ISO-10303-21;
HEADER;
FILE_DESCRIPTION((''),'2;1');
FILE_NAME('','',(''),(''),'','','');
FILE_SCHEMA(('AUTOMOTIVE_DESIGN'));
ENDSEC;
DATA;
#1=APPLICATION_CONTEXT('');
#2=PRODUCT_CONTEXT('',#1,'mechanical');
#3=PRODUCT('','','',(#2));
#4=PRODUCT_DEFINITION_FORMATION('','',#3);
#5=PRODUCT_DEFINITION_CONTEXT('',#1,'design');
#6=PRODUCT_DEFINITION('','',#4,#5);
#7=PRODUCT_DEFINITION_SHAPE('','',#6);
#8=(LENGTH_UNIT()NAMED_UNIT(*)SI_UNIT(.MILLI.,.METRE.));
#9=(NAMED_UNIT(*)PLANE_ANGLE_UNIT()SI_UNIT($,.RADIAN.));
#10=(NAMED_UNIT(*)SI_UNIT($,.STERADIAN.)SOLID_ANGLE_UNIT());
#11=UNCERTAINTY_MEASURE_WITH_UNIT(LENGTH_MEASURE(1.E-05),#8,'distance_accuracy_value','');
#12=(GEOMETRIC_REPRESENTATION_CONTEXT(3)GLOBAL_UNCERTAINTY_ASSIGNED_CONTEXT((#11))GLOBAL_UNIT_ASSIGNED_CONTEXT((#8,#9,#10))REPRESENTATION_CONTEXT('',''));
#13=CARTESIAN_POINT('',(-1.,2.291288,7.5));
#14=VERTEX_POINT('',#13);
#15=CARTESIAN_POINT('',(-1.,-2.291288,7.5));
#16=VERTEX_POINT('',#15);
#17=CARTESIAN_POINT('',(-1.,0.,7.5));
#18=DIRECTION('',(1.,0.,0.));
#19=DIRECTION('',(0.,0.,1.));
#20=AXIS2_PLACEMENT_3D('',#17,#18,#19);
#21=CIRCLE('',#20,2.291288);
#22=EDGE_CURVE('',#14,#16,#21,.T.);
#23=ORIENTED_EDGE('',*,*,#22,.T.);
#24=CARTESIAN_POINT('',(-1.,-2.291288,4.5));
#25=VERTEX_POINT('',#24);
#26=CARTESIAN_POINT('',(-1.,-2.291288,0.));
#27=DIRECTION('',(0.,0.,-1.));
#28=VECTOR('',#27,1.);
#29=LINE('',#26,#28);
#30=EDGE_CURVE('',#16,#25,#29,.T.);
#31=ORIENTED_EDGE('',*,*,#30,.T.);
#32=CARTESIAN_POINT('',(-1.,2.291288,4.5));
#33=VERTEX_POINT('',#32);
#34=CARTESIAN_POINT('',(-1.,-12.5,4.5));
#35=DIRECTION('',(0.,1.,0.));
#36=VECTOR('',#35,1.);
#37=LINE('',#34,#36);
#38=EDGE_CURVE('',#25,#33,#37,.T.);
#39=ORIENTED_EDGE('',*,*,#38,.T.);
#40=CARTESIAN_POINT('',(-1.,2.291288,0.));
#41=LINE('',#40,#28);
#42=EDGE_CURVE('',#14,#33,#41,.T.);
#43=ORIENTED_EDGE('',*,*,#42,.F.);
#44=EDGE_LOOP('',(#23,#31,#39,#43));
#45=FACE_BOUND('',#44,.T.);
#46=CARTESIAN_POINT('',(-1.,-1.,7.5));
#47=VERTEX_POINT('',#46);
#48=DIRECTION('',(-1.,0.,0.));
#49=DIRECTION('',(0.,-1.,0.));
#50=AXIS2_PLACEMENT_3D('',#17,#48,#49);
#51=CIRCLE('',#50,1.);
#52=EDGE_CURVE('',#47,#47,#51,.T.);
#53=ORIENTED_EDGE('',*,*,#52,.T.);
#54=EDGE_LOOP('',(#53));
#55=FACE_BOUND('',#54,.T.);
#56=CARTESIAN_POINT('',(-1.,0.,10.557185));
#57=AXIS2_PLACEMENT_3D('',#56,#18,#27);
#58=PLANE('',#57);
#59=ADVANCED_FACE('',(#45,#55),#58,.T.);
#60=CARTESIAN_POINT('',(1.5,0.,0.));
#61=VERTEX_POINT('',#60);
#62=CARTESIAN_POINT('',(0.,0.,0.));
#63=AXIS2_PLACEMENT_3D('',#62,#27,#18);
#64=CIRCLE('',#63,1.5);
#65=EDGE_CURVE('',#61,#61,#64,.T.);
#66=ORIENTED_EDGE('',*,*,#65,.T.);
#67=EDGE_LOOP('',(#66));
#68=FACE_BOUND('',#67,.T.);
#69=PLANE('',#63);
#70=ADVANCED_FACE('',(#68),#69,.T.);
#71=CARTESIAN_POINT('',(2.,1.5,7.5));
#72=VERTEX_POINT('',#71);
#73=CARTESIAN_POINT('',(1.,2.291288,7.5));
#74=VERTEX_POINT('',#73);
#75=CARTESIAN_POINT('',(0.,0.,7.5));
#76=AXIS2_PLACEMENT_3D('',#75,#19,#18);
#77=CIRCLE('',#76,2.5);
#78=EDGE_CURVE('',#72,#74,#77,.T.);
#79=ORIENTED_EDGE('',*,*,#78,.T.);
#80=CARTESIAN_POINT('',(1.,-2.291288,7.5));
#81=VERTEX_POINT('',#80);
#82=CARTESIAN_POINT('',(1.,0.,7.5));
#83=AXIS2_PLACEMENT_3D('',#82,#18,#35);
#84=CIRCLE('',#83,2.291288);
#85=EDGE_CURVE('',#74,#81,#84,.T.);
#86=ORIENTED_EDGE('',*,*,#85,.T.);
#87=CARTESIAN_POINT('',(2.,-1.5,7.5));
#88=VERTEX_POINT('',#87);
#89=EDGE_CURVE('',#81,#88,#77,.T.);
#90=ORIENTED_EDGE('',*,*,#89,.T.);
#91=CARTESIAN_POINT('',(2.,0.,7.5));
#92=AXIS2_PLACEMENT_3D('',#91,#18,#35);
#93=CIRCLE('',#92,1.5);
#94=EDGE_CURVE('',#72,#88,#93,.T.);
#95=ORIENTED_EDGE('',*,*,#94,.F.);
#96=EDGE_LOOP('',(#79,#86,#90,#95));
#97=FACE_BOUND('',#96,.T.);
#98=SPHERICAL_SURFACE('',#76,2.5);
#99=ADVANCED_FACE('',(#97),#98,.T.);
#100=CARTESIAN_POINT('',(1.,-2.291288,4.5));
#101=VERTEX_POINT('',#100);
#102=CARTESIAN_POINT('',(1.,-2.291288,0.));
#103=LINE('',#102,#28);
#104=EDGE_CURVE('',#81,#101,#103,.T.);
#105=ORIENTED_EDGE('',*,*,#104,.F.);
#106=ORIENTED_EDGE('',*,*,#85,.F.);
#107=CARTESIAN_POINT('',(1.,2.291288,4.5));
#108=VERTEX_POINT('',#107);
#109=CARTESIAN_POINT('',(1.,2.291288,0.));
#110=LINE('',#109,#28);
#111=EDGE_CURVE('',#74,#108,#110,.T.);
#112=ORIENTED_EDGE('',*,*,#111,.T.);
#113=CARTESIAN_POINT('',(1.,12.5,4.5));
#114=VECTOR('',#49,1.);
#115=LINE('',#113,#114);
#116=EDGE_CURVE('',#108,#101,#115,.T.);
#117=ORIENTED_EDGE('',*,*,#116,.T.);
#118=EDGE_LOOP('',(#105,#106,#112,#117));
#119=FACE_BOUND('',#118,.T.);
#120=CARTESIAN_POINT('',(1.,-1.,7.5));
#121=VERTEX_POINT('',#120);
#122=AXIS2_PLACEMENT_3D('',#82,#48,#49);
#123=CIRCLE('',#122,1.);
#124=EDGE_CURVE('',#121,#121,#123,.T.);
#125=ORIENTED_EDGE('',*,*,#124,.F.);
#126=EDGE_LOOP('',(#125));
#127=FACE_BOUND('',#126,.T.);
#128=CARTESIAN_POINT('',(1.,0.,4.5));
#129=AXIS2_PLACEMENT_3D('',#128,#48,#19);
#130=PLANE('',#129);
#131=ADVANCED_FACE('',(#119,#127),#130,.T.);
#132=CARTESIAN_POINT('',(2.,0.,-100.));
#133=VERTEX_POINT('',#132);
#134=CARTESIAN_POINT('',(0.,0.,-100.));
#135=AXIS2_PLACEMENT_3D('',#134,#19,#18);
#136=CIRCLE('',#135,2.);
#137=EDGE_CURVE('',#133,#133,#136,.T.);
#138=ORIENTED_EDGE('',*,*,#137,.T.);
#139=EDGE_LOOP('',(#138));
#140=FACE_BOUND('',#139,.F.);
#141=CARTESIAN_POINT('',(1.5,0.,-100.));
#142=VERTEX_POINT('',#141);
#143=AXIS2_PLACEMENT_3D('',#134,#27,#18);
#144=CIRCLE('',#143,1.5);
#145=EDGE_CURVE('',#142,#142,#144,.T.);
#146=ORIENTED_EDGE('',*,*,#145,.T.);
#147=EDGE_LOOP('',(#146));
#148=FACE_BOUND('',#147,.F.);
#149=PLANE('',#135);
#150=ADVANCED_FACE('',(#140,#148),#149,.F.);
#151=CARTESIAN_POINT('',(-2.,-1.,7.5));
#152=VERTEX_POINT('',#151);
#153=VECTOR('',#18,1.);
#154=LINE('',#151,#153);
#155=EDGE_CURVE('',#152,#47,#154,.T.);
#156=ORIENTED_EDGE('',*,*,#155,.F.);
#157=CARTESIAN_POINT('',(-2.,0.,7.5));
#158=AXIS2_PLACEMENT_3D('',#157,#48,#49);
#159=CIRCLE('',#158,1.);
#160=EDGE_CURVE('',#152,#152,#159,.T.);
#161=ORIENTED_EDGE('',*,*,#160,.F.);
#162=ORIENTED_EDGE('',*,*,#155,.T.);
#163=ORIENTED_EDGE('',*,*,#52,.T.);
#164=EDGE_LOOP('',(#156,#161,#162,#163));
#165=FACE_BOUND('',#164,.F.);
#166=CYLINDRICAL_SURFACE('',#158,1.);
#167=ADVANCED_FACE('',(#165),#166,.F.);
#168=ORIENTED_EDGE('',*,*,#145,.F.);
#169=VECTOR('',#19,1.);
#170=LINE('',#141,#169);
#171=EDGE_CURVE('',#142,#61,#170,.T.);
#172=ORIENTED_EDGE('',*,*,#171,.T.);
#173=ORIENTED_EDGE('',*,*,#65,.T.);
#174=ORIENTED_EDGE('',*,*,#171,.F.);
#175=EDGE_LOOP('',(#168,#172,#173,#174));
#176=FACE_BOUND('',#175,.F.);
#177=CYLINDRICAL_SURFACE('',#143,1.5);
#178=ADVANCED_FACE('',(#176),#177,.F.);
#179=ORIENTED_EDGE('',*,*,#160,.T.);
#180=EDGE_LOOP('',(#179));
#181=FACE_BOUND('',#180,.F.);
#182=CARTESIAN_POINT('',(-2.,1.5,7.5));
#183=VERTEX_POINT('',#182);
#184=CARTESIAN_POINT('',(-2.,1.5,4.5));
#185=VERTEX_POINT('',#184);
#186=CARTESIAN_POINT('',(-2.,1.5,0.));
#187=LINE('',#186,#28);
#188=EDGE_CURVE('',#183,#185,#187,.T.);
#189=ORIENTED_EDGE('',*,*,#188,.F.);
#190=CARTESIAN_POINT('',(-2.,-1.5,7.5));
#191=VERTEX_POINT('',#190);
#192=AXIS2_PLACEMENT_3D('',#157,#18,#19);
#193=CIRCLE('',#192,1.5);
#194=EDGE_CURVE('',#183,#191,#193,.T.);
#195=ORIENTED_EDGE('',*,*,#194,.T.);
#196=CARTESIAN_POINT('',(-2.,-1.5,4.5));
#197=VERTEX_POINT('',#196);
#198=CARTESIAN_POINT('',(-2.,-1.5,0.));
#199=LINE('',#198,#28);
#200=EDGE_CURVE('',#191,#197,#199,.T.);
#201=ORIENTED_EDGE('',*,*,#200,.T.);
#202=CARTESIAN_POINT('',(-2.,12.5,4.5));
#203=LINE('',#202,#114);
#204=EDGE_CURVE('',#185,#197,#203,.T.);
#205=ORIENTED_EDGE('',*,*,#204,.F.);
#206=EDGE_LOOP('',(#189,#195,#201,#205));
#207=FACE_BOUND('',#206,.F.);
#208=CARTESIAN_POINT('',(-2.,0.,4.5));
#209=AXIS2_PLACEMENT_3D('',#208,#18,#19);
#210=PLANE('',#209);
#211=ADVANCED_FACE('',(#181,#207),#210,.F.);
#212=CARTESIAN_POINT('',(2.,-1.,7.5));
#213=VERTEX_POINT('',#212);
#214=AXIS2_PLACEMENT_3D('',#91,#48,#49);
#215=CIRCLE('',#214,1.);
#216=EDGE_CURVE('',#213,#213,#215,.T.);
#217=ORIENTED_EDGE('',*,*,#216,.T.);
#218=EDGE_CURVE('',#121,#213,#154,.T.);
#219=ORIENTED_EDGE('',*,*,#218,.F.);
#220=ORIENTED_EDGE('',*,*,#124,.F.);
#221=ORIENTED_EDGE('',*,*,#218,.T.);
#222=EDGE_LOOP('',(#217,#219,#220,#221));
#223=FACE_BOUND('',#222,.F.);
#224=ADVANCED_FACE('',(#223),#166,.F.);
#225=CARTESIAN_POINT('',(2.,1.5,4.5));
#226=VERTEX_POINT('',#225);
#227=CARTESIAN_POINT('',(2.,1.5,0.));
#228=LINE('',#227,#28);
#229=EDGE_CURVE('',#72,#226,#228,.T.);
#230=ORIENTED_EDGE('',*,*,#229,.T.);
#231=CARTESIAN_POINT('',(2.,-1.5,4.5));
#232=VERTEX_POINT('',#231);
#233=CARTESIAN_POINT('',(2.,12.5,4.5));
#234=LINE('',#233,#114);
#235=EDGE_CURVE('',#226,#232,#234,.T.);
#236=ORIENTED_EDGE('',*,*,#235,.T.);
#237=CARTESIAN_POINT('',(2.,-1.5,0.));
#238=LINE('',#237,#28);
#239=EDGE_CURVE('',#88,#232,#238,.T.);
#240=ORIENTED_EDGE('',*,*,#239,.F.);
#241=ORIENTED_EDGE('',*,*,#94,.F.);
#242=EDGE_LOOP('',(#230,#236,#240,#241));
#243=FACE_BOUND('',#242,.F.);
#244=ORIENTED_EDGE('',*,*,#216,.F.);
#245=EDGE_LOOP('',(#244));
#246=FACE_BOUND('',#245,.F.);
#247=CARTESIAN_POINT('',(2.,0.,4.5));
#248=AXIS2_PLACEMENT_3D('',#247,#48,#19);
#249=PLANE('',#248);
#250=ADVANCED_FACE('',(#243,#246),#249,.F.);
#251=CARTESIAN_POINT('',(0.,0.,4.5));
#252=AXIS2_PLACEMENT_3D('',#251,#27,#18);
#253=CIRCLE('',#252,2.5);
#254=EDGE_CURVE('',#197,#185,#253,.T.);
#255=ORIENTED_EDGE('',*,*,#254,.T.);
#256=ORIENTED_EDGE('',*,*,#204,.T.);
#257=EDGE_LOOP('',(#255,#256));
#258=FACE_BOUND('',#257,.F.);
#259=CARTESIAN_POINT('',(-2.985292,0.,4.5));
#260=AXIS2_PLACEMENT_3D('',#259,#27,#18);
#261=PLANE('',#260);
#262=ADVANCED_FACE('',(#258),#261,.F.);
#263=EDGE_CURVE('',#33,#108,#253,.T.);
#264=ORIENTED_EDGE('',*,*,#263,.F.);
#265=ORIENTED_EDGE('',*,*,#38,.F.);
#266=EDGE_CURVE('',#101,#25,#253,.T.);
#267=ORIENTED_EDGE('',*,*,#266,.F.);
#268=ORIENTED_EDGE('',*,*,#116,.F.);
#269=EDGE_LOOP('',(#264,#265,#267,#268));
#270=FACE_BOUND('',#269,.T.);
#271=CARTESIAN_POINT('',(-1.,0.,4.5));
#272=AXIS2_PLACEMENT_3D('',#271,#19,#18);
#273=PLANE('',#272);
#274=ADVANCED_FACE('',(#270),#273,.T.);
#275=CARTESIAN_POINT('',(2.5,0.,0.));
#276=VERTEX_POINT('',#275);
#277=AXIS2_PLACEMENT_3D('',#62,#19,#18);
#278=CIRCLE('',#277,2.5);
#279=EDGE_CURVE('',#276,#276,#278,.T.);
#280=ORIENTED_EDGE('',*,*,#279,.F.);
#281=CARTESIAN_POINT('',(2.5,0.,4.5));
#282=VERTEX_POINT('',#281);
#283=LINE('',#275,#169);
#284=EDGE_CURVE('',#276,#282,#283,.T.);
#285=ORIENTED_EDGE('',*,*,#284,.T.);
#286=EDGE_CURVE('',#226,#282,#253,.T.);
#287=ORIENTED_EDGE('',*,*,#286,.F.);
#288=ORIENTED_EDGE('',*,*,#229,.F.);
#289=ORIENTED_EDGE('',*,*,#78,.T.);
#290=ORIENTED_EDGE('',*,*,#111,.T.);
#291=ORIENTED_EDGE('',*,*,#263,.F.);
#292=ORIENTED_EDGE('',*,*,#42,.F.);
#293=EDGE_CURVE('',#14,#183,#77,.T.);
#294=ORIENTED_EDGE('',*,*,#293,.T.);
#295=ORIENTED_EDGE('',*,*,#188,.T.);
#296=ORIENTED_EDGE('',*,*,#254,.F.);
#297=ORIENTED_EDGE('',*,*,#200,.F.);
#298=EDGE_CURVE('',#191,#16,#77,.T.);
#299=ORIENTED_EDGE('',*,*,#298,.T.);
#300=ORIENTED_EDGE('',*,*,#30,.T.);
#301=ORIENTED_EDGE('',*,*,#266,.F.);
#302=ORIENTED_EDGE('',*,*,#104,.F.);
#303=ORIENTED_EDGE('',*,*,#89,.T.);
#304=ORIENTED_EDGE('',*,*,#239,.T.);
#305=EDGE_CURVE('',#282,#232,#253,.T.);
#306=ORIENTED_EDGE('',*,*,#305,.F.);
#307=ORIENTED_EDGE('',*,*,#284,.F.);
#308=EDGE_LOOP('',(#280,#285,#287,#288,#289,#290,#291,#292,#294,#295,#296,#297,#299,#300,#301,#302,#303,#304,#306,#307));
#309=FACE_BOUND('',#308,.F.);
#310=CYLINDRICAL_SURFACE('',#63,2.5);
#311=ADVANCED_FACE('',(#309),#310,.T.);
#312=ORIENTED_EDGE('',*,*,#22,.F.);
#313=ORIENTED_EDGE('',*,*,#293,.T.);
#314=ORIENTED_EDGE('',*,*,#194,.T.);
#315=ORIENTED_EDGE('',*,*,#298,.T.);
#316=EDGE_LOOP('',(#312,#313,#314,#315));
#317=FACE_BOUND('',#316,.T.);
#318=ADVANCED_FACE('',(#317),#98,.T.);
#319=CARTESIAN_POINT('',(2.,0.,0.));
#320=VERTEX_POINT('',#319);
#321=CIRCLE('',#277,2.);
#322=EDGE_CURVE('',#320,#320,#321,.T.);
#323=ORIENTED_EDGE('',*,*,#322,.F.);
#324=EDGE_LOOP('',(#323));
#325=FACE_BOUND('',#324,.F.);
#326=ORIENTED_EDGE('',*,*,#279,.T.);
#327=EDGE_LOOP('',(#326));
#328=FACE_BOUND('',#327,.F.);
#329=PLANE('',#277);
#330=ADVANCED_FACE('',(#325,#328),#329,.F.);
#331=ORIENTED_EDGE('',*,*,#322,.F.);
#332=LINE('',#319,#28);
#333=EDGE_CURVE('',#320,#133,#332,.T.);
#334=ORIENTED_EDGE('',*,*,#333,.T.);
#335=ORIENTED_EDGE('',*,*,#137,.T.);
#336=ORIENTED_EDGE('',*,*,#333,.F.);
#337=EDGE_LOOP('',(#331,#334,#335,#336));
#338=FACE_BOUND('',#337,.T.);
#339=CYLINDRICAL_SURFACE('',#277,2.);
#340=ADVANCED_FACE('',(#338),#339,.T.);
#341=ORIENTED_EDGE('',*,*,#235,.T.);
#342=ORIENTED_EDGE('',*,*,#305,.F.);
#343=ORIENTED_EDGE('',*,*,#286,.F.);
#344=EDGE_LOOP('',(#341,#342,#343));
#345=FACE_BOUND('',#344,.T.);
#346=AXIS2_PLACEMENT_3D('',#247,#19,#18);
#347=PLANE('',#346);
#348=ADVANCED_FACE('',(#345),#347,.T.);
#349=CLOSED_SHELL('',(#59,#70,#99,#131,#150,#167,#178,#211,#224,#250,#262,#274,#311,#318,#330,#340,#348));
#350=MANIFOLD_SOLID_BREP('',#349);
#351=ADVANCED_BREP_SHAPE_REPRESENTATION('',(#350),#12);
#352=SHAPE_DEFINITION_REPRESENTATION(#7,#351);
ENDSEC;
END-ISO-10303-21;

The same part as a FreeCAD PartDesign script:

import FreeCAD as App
import Part
import Sketcher


def edges_at(feature, points):
    """Names of the edges that pass closest to the given points."""
    edges = feature.Shape.Edges
    near = lambda p: min(range(len(edges)), key=lambda i: edges[i].distToShape(Part.Vertex(*p))[0])
    return sorted({f"Edge{near(p) + 1}" for p in points})


def add_polygon(sketch, points):
    """Adds a closed chain of lines whose ends are joined by coincident constraints."""
    first, n = sketch.GeometryCount, len(points)
    for a, b in zip(points, points[1:] + points[:1]):
        sketch.addGeometry(Part.LineSegment(App.Vector(*a, 0), App.Vector(*b, 0)), False)
    for i in range(n):
        sketch.addConstraint(Sketcher.Constraint("Coincident", first + i, 2, first + (i + 1) % n, 1))

doc = App.newDocument("Part")
body = doc.addObject("PartDesign::Body", "Body")

# Sketch on XY plane
sketch1 = body.newObject("Sketcher::SketchObject", "Sketch")
sketch1.AttachmentSupport = (doc.getObject("XY_Plane"), [""])
sketch1.MapMode = "FlatFace"
sketch1.addGeometry(Part.Circle(App.Vector(0, 0, 0), App.Vector(0, 0, 1), 2), False)
sketch1.addConstraint(Sketcher.Constraint("Coincident", 0, 3, -1, 1))
sketch1.addConstraint(Sketcher.Constraint("Diameter", 0, 4.0))
pad1 = body.newObject("PartDesign::Pad", "Pad")
pad1.Profile = sketch1
pad1.Length = 100
pad1.Reversed = True

# Sketch on XY plane
sketch2 = body.newObject("Sketcher::SketchObject", "Sketch001")
sketch2.AttachmentSupport = (doc.getObject("XY_Plane"), [""])
sketch2.MapMode = "FlatFace"
sketch2.addGeometry(Part.Circle(App.Vector(0, 0, 0), App.Vector(0, 0, 1), 2.5), False)
sketch2.addConstraint(Sketcher.Constraint("Coincident", 0, 3, -1, 1))
sketch2.addConstraint(Sketcher.Constraint("Diameter", 0, 5.0))
pad2 = body.newObject("PartDesign::Pad", "Pad001")
pad2.Profile = sketch2
pad2.Length = 10
doc.recompute()

fillet = body.newObject("PartDesign::Fillet", "Fillet")
fillet.Base = (pad2, edges_at(pad2, [(-2.5, 0, 10)]))
fillet.Radius = 2.5

# Sketch on XZ plane
sketch3 = body.newObject("Sketcher::SketchObject", "Sketch002")
sketch3.AttachmentSupport = (doc.getObject("XZ_Plane"), [""])
sketch3.MapMode = "FlatFace"
add_polygon(sketch3, [(-1, 4.5), (1, 4.5), (1, 10.557185), (-1, 10.557185)])  # lines 0-3
add_polygon(sketch3, [(2, 10.530724), (2, 4.5), (3.339052, 4.5), (3.339052, 10.530724)])  # lines 4-7
add_polygon(sketch3, [(-2.985292, 10.557184), (-2.985292, 4.5), (-2, 4.5), (-2, 10.557184)])  # lines 8-11
sketch3.addConstraint(Sketcher.Constraint("Horizontal", 0))
sketch3.addConstraint(Sketcher.Constraint("Vertical", 1))
sketch3.addConstraint(Sketcher.Constraint("Horizontal", 2))
sketch3.addConstraint(Sketcher.Constraint("Vertical", 3))
sketch3.addConstraint(Sketcher.Constraint("Vertical", 4))
sketch3.addConstraint(Sketcher.Constraint("Horizontal", 5))
sketch3.addConstraint(Sketcher.Constraint("Vertical", 6))
sketch3.addConstraint(Sketcher.Constraint("Horizontal", 7))
sketch3.addConstraint(Sketcher.Constraint("Vertical", 8))
sketch3.addConstraint(Sketcher.Constraint("Horizontal", 9))
sketch3.addConstraint(Sketcher.Constraint("Vertical", 10))
sketch3.addConstraint(Sketcher.Constraint("Horizontal", 11))
sketch3.addConstraint(Sketcher.Constraint("Symmetric", 4, 2, 9, 2, -2))
sketch3.addConstraint(Sketcher.Constraint("Horizontal", 3, 2, 4, 2))
sketch3.addConstraint(Sketcher.Constraint("Horizontal", 2, 2, 10, 2))
sketch3.addConstraint(Sketcher.Constraint("DistanceX", 0, 1, 0, 2, 2.0))
sketch3.addConstraint(Sketcher.Constraint("DistanceX", -1, 1, 0, 2, 1.0))
sketch3.addConstraint(Sketcher.Constraint("DistanceX", -1, 1, 4, 2, 2.0))
sketch3.addConstraint(Sketcher.Constraint("DistanceY", -1, 1, 0, 2, 4.5))
sketch3.addConstraint(Sketcher.Constraint("DistanceX", 9, 1, 9, 2, 0.985292))
sketch3.addConstraint(Sketcher.Constraint("DistanceX", 5, 1, 5, 2, 1.339052))
sketch3.addConstraint(Sketcher.Constraint("DistanceY", 1, 1, 1, 2, 6.057185))
sketch3.addConstraint(Sketcher.Constraint("DistanceY", 4, 2, 4, 1, 6.030723))
pocket1 = body.newObject("PartDesign::Pocket", "Pocket")
pocket1.Profile = sketch3
pocket1.Length = 25
pocket1.Midplane = True

# Sketch on YZ plane
sketch4 = body.newObject("Sketcher::SketchObject", "Sketch003")
sketch4.AttachmentSupport = (doc.getObject("YZ_Plane"), [""])
sketch4.MapMode = "FlatFace"
sketch4.AttachmentOffset = App.Placement(App.Vector(0, 0, -2), App.Rotation())
sketch4.addGeometry(Part.Circle(App.Vector(0, 7.5, 0), App.Vector(0, 0, 1), 1), False)
sketch4.addConstraint(Sketcher.Constraint("PointOnObject", 0, 3, -2))
sketch4.addConstraint(Sketcher.Constraint("Diameter", 0, 2.0))
sketch4.addConstraint(Sketcher.Constraint("DistanceY", -1, 1, 0, 3, 7.5))
pocket2 = body.newObject("PartDesign::Pocket", "Pocket001")
pocket2.Profile = sketch4
pocket2.Length = 25
pocket2.Reversed = True

# Sketch on XY plane
sketch5 = body.newObject("Sketcher::SketchObject", "Sketch004")
sketch5.AttachmentSupport = (doc.getObject("XY_Plane"), [""])
sketch5.MapMode = "FlatFace"
sketch5.AttachmentOffset = App.Placement(App.Vector(0, 0, -100), App.Rotation())
sketch5.addGeometry(Part.Circle(App.Vector(0, 0, 0), App.Vector(0, 0, 1), 1.5), False)
sketch5.addConstraint(Sketcher.Constraint("Coincident", 0, 3, -1, 1))
sketch5.addConstraint(Sketcher.Constraint("Diameter", 0, 3.0))
pocket3 = body.newObject("PartDesign::Pocket", "Pocket002")
pocket3.Profile = sketch5
pocket3.Length = 100
pocket3.Reversed = True

doc.recompute()
